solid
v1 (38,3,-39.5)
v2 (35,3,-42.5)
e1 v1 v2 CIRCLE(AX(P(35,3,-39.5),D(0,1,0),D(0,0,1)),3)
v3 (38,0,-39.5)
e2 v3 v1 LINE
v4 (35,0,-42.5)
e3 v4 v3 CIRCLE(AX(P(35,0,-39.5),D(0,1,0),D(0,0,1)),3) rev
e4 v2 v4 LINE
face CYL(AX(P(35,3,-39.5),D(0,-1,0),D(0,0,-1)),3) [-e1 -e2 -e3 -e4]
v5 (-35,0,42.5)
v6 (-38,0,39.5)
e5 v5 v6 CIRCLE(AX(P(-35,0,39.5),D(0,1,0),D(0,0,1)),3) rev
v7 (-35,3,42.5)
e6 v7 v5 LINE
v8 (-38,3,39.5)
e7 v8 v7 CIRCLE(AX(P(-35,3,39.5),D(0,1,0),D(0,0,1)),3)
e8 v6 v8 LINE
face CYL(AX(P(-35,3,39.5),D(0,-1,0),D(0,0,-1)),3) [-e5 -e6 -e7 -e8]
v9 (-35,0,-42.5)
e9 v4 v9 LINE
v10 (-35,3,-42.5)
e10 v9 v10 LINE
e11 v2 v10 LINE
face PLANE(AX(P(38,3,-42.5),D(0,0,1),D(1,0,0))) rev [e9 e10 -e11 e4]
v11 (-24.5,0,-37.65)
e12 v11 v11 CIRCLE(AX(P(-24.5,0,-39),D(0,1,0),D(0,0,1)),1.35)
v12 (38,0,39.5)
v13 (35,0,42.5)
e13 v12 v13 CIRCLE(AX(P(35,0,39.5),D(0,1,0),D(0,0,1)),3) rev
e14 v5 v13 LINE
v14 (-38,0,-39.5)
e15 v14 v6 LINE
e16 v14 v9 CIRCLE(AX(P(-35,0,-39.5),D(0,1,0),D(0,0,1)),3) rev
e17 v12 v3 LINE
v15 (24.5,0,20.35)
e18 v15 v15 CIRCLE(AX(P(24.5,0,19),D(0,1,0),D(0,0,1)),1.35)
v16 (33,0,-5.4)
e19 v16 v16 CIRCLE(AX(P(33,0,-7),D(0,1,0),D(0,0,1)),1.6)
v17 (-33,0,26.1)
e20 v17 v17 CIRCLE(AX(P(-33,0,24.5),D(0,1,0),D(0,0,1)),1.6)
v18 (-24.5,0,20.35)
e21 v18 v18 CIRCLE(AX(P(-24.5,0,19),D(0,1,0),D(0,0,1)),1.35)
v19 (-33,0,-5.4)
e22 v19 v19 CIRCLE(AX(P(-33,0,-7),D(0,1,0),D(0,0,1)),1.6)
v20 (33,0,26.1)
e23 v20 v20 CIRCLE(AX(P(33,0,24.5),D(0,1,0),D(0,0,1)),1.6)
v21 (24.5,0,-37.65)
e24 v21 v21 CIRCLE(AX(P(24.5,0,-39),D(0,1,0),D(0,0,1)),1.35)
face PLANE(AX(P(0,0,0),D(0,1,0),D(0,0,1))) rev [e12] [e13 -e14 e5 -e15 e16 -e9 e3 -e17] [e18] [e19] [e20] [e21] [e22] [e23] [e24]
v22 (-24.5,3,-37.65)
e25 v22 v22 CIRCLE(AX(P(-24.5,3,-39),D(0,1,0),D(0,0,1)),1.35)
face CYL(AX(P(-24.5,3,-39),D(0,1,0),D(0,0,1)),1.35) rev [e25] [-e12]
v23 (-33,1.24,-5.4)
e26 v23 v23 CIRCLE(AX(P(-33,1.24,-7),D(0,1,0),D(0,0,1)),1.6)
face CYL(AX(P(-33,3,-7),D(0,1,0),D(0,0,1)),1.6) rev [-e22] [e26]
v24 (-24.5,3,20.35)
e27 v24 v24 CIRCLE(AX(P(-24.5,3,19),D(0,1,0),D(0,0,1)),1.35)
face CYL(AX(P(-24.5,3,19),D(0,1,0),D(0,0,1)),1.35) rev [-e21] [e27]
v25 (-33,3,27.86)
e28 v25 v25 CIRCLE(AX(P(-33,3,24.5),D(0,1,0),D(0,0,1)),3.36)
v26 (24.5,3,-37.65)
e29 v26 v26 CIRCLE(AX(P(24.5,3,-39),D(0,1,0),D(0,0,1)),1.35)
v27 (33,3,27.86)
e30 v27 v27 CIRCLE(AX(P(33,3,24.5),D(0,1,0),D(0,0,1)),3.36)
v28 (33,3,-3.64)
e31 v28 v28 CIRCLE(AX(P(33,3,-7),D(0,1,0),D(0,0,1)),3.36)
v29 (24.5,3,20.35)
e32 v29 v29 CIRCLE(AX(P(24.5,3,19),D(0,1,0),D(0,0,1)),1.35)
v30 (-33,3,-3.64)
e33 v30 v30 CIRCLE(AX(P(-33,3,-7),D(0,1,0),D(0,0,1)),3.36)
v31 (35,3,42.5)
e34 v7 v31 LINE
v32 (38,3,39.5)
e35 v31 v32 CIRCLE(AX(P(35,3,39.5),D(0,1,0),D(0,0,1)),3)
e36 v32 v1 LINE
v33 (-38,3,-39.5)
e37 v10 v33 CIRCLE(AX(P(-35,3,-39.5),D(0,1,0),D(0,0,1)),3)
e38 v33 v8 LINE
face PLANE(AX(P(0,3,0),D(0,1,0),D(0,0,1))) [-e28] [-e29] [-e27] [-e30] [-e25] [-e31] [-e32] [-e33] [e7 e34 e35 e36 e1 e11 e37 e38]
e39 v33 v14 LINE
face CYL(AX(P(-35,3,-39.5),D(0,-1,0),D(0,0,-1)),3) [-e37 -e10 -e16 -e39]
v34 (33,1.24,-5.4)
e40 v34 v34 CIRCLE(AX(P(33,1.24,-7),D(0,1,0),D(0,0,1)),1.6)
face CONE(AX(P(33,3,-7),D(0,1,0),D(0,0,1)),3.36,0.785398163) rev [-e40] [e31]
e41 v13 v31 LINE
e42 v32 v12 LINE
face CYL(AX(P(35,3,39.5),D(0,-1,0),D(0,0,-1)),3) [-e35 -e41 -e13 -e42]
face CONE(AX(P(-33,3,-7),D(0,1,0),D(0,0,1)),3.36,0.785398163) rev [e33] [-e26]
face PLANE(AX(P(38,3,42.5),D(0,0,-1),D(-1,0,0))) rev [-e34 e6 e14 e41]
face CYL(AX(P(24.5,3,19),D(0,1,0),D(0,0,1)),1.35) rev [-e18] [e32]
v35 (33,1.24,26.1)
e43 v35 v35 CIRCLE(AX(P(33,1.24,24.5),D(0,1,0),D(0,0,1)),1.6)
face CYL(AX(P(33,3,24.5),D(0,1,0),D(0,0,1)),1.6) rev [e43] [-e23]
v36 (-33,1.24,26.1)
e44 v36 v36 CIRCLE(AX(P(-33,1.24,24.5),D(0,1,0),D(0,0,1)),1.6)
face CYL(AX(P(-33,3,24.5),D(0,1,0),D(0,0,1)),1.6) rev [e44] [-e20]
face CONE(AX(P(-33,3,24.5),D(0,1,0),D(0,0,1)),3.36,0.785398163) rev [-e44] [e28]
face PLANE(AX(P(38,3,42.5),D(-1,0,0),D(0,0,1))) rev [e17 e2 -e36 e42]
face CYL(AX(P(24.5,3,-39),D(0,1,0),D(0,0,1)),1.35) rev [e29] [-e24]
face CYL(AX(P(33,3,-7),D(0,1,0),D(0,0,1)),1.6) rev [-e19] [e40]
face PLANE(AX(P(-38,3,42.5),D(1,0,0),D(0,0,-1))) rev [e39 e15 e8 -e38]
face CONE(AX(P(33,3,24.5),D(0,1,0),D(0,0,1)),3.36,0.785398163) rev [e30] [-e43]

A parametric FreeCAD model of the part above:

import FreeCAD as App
import Part
import Sketcher
Q = App.Units.Quantity


def edges_at(feature, points):
    """Names of the edges that pass closest to the given points."""
    edges = feature.Shape.Edges
    near = lambda p: min(range(len(edges)), key=lambda i: edges[i].distToShape(Part.Vertex(*p))[0])
    return sorted({f"Edge{near(p) + 1}" for p in points})

doc = App.newDocument("Part")
body = doc.addObject("PartDesign::Body", "Body")

# Sketch on XZ plane
sketch1 = body.newObject("Sketcher::SketchObject", "Sketch")
sketch1.AttachmentSupport = (doc.getObject("XZ_Plane"), [""])
sketch1.MapMode = "FlatFace"
sketch1.addGeometry([
    Part.LineSegment(App.Vector(-38, -42, 0), App.Vector(-38, 42, 0)),
    Part.LineSegment(App.Vector(-38, 42, 0), App.Vector(38, 42, 0)),
    Part.LineSegment(App.Vector(38, 42, 0), App.Vector(38, -42, 0)),
    Part.LineSegment(App.Vector(38, -42, 0), App.Vector(-38, -42, 0)),
], False)
sketch1.addConstraint([
    Sketcher.Constraint("Coincident", 0, 2, 1, 1),
    Sketcher.Constraint("Coincident", 1, 2, 2, 1),
    Sketcher.Constraint("Coincident", 2, 2, 3, 1),
    Sketcher.Constraint("Coincident", 3, 2, 0, 1),
    Sketcher.Constraint("Vertical", 0),
    Sketcher.Constraint("Horizontal", 1),
    Sketcher.Constraint("Vertical", 2),
    Sketcher.Constraint("Horizontal", 3),
    Sketcher.Constraint("Symmetric", 0, 2, 2, 2, -1, 1),
    Sketcher.Constraint("DistanceX", 1, 1, 1, 2, 76.0),
    Sketcher.Constraint("DistanceY", 0, 1, 0, 2, 85.0),
])
pad1 = body.newObject("PartDesign::Pad", "Pad")
pad1.Profile = sketch1
pad1.Length = 3
pad1.Reversed = True

# Sketch on XZ plane
sketch2 = body.newObject("Sketcher::SketchObject", "Sketch001")
sketch2.AttachmentSupport = (doc.getObject("XZ_Plane"), [""])
sketch2.MapMode = "FlatFace"
sketch2.AttachmentOffset = App.Placement(App.Vector(0, 0, -3), App.Rotation())
sketch2.addGeometry([
    Part.Circle(App.Vector(-24.5, -39, 0), App.Vector(0, 0, 1), 1.4),
    Part.Circle(App.Vector(-24.5, 19, 0), App.Vector(0, 0, 1), 1.4),
    Part.Circle(App.Vector(24.5, 19, 0), App.Vector(0, 0, 1), 1.4),
    Part.Circle(App.Vector(24.5, -39, 0), App.Vector(0, 0, 1), 1.4),
], False)
sketch2.addConstraint([
    Sketcher.Constraint("Equal", 0, 1),
    Sketcher.Constraint("Equal", 1, 2),
    Sketcher.Constraint("Equal", 2, 3),
    Sketcher.Constraint("Symmetric", 1, 3, 2, 3, -2),
    Sketcher.Constraint("Symmetric", 0, 3, 3, 3, -2),
    Sketcher.Constraint("Vertical", 0, 3, 1, 3),
    Sketcher.Constraint("Diameter", 0, 2.7),
    Sketcher.Constraint("DistanceY", 0, 3, -1, 1, 39.0),
    Sketcher.Constraint("DistanceY", -1, 1, 1, 3, 19.0),
    Sketcher.Constraint("DistanceX", 1, 3, 2, 3, 49.0),
])
doc.recompute()
hole = body.newObject("PartDesign::Hole", "Hole")
hole.Profile = sketch2
hole.ThreadType = "None"
hole.Diameter = 2.7
hole.DepthType = "ThroughAll"
hole.Reversed = True

# Sketch on YZ plane
sketch3 = body.newObject("Sketcher::SketchObject", "Sketch002")
sketch3.AttachmentSupport = (doc.getObject("YZ_Plane"), [""])
sketch3.MapMode = "FlatFace"
sketch3.AttachmentOffset = App.Placement(App.Vector(0, 0, -33), App.Rotation())
sketch3.addGeometry([
    Part.LineSegment(App.Vector(0, 24.5, 0), App.Vector(3, 24.5, 0)),  # 0
    Part.LineSegment(App.Vector(3, 24.5, 0), App.Vector(3, 27.9, 0)),  # 1
    Part.LineSegment(App.Vector(3, 27.9, 0), App.Vector(1.2, 26.1, 0)),  # 2
    Part.LineSegment(App.Vector(1.2, 26.1, 0), App.Vector(0, 26.1, 0)),  # 3
    Part.LineSegment(App.Vector(0, 26.1, 0), App.Vector(0, 24.5, 0)),  # 4
], False)
sketch3.addGeometry(Part.LineSegment(App.Vector(3, 24.5, 0), App.Vector(0, 24.5, 0)), True)  # axis
sketch3.addConstraint([
    Sketcher.Constraint("Coincident", 0, 2, 1, 1),
    Sketcher.Constraint("Coincident", 1, 2, 2, 1),
    Sketcher.Constraint("Coincident", 2, 2, 3, 1),
    Sketcher.Constraint("Coincident", 3, 2, 4, 1),
    Sketcher.Constraint("Coincident", 4, 2, 0, 1),
    Sketcher.Constraint("Horizontal", 0),
    Sketcher.Constraint("Vertical", 1),
    Sketcher.Constraint("Horizontal", 3),
    Sketcher.Constraint("Vertical", 4),
    Sketcher.Constraint("Horizontal", 5),
    Sketcher.Constraint("Coincident", 5, 1, 0, 2),
    Sketcher.Constraint("PointOnObject", 3, 2, -2),
    Sketcher.Constraint("PointOnObject", 5, 2, -2),
    Sketcher.Constraint("DistanceX", 0, 1, 0, 2, 3.0),
    Sketcher.Constraint("Angle", 2, Q("-135 deg")),
    Sketcher.Constraint("DistanceY", 4, 2, 4, 1, 1.6),
    Sketcher.Constraint("DistanceX", 3, 2, 3, 1, 1.24),
    Sketcher.Constraint("DistanceY", -1, 1, 0, 2, 24.5),
])
groove = body.newObject("PartDesign::Groove", "Groove")
groove.Profile = sketch3
groove.ReferenceAxis = (sketch3, ["Axis0"])
groove.Angle = 360
doc.recompute()

linearpattern = body.newObject("PartDesign::LinearPattern", "LinearPattern")
linearpattern.Originals = [groove]
linearpattern.Direction = (doc.getObject("Z_Axis"), [""])
linearpattern.Mode = "offset"
linearpattern.Offset = 31.5
linearpattern.Occurrences = 2
linearpattern.Reversed = True
body.Tip = linearpattern
doc.recompute()

datumline = body.newObject("PartDesign::Line", "DatumLine")
datumline.Placement = App.Placement(App.Vector(0, 0, 0), App.Rotation(App.Vector(0, 0, 1), App.Vector(0.902481038, 0, -0.430729586)))
linearpattern2 = body.newObject("PartDesign::LinearPattern", "LinearPattern001")
linearpattern2.Originals = [groove]
linearpattern2.Direction = (datumline, [""])
linearpattern2.Mode = "offset"
linearpattern2.Offset = 73.13173
linearpattern2.Occurrences = 2
body.Tip = linearpattern2
doc.recompute()

linearpattern3 = body.newObject("PartDesign::LinearPattern", "LinearPattern002")
linearpattern3.Originals = [groove]
linearpattern3.Direction = (doc.getObject("X_Axis"), [""])
linearpattern3.Mode = "offset"
linearpattern3.Offset = 66
linearpattern3.Occurrences = 2
body.Tip = linearpattern3
doc.recompute()

fillet = body.newObject("PartDesign::Fillet", "Fillet")
fillet.Base = (linearpattern3, edges_at(linearpattern3, [
    (-38, 1.5, -42.5),
    (38, 1.5, -42.5),
    (38, 1.5, 42.5),
    (-38, 1.5, 42.5),
]))
fillet.Radius = 3

doc.recompute()
